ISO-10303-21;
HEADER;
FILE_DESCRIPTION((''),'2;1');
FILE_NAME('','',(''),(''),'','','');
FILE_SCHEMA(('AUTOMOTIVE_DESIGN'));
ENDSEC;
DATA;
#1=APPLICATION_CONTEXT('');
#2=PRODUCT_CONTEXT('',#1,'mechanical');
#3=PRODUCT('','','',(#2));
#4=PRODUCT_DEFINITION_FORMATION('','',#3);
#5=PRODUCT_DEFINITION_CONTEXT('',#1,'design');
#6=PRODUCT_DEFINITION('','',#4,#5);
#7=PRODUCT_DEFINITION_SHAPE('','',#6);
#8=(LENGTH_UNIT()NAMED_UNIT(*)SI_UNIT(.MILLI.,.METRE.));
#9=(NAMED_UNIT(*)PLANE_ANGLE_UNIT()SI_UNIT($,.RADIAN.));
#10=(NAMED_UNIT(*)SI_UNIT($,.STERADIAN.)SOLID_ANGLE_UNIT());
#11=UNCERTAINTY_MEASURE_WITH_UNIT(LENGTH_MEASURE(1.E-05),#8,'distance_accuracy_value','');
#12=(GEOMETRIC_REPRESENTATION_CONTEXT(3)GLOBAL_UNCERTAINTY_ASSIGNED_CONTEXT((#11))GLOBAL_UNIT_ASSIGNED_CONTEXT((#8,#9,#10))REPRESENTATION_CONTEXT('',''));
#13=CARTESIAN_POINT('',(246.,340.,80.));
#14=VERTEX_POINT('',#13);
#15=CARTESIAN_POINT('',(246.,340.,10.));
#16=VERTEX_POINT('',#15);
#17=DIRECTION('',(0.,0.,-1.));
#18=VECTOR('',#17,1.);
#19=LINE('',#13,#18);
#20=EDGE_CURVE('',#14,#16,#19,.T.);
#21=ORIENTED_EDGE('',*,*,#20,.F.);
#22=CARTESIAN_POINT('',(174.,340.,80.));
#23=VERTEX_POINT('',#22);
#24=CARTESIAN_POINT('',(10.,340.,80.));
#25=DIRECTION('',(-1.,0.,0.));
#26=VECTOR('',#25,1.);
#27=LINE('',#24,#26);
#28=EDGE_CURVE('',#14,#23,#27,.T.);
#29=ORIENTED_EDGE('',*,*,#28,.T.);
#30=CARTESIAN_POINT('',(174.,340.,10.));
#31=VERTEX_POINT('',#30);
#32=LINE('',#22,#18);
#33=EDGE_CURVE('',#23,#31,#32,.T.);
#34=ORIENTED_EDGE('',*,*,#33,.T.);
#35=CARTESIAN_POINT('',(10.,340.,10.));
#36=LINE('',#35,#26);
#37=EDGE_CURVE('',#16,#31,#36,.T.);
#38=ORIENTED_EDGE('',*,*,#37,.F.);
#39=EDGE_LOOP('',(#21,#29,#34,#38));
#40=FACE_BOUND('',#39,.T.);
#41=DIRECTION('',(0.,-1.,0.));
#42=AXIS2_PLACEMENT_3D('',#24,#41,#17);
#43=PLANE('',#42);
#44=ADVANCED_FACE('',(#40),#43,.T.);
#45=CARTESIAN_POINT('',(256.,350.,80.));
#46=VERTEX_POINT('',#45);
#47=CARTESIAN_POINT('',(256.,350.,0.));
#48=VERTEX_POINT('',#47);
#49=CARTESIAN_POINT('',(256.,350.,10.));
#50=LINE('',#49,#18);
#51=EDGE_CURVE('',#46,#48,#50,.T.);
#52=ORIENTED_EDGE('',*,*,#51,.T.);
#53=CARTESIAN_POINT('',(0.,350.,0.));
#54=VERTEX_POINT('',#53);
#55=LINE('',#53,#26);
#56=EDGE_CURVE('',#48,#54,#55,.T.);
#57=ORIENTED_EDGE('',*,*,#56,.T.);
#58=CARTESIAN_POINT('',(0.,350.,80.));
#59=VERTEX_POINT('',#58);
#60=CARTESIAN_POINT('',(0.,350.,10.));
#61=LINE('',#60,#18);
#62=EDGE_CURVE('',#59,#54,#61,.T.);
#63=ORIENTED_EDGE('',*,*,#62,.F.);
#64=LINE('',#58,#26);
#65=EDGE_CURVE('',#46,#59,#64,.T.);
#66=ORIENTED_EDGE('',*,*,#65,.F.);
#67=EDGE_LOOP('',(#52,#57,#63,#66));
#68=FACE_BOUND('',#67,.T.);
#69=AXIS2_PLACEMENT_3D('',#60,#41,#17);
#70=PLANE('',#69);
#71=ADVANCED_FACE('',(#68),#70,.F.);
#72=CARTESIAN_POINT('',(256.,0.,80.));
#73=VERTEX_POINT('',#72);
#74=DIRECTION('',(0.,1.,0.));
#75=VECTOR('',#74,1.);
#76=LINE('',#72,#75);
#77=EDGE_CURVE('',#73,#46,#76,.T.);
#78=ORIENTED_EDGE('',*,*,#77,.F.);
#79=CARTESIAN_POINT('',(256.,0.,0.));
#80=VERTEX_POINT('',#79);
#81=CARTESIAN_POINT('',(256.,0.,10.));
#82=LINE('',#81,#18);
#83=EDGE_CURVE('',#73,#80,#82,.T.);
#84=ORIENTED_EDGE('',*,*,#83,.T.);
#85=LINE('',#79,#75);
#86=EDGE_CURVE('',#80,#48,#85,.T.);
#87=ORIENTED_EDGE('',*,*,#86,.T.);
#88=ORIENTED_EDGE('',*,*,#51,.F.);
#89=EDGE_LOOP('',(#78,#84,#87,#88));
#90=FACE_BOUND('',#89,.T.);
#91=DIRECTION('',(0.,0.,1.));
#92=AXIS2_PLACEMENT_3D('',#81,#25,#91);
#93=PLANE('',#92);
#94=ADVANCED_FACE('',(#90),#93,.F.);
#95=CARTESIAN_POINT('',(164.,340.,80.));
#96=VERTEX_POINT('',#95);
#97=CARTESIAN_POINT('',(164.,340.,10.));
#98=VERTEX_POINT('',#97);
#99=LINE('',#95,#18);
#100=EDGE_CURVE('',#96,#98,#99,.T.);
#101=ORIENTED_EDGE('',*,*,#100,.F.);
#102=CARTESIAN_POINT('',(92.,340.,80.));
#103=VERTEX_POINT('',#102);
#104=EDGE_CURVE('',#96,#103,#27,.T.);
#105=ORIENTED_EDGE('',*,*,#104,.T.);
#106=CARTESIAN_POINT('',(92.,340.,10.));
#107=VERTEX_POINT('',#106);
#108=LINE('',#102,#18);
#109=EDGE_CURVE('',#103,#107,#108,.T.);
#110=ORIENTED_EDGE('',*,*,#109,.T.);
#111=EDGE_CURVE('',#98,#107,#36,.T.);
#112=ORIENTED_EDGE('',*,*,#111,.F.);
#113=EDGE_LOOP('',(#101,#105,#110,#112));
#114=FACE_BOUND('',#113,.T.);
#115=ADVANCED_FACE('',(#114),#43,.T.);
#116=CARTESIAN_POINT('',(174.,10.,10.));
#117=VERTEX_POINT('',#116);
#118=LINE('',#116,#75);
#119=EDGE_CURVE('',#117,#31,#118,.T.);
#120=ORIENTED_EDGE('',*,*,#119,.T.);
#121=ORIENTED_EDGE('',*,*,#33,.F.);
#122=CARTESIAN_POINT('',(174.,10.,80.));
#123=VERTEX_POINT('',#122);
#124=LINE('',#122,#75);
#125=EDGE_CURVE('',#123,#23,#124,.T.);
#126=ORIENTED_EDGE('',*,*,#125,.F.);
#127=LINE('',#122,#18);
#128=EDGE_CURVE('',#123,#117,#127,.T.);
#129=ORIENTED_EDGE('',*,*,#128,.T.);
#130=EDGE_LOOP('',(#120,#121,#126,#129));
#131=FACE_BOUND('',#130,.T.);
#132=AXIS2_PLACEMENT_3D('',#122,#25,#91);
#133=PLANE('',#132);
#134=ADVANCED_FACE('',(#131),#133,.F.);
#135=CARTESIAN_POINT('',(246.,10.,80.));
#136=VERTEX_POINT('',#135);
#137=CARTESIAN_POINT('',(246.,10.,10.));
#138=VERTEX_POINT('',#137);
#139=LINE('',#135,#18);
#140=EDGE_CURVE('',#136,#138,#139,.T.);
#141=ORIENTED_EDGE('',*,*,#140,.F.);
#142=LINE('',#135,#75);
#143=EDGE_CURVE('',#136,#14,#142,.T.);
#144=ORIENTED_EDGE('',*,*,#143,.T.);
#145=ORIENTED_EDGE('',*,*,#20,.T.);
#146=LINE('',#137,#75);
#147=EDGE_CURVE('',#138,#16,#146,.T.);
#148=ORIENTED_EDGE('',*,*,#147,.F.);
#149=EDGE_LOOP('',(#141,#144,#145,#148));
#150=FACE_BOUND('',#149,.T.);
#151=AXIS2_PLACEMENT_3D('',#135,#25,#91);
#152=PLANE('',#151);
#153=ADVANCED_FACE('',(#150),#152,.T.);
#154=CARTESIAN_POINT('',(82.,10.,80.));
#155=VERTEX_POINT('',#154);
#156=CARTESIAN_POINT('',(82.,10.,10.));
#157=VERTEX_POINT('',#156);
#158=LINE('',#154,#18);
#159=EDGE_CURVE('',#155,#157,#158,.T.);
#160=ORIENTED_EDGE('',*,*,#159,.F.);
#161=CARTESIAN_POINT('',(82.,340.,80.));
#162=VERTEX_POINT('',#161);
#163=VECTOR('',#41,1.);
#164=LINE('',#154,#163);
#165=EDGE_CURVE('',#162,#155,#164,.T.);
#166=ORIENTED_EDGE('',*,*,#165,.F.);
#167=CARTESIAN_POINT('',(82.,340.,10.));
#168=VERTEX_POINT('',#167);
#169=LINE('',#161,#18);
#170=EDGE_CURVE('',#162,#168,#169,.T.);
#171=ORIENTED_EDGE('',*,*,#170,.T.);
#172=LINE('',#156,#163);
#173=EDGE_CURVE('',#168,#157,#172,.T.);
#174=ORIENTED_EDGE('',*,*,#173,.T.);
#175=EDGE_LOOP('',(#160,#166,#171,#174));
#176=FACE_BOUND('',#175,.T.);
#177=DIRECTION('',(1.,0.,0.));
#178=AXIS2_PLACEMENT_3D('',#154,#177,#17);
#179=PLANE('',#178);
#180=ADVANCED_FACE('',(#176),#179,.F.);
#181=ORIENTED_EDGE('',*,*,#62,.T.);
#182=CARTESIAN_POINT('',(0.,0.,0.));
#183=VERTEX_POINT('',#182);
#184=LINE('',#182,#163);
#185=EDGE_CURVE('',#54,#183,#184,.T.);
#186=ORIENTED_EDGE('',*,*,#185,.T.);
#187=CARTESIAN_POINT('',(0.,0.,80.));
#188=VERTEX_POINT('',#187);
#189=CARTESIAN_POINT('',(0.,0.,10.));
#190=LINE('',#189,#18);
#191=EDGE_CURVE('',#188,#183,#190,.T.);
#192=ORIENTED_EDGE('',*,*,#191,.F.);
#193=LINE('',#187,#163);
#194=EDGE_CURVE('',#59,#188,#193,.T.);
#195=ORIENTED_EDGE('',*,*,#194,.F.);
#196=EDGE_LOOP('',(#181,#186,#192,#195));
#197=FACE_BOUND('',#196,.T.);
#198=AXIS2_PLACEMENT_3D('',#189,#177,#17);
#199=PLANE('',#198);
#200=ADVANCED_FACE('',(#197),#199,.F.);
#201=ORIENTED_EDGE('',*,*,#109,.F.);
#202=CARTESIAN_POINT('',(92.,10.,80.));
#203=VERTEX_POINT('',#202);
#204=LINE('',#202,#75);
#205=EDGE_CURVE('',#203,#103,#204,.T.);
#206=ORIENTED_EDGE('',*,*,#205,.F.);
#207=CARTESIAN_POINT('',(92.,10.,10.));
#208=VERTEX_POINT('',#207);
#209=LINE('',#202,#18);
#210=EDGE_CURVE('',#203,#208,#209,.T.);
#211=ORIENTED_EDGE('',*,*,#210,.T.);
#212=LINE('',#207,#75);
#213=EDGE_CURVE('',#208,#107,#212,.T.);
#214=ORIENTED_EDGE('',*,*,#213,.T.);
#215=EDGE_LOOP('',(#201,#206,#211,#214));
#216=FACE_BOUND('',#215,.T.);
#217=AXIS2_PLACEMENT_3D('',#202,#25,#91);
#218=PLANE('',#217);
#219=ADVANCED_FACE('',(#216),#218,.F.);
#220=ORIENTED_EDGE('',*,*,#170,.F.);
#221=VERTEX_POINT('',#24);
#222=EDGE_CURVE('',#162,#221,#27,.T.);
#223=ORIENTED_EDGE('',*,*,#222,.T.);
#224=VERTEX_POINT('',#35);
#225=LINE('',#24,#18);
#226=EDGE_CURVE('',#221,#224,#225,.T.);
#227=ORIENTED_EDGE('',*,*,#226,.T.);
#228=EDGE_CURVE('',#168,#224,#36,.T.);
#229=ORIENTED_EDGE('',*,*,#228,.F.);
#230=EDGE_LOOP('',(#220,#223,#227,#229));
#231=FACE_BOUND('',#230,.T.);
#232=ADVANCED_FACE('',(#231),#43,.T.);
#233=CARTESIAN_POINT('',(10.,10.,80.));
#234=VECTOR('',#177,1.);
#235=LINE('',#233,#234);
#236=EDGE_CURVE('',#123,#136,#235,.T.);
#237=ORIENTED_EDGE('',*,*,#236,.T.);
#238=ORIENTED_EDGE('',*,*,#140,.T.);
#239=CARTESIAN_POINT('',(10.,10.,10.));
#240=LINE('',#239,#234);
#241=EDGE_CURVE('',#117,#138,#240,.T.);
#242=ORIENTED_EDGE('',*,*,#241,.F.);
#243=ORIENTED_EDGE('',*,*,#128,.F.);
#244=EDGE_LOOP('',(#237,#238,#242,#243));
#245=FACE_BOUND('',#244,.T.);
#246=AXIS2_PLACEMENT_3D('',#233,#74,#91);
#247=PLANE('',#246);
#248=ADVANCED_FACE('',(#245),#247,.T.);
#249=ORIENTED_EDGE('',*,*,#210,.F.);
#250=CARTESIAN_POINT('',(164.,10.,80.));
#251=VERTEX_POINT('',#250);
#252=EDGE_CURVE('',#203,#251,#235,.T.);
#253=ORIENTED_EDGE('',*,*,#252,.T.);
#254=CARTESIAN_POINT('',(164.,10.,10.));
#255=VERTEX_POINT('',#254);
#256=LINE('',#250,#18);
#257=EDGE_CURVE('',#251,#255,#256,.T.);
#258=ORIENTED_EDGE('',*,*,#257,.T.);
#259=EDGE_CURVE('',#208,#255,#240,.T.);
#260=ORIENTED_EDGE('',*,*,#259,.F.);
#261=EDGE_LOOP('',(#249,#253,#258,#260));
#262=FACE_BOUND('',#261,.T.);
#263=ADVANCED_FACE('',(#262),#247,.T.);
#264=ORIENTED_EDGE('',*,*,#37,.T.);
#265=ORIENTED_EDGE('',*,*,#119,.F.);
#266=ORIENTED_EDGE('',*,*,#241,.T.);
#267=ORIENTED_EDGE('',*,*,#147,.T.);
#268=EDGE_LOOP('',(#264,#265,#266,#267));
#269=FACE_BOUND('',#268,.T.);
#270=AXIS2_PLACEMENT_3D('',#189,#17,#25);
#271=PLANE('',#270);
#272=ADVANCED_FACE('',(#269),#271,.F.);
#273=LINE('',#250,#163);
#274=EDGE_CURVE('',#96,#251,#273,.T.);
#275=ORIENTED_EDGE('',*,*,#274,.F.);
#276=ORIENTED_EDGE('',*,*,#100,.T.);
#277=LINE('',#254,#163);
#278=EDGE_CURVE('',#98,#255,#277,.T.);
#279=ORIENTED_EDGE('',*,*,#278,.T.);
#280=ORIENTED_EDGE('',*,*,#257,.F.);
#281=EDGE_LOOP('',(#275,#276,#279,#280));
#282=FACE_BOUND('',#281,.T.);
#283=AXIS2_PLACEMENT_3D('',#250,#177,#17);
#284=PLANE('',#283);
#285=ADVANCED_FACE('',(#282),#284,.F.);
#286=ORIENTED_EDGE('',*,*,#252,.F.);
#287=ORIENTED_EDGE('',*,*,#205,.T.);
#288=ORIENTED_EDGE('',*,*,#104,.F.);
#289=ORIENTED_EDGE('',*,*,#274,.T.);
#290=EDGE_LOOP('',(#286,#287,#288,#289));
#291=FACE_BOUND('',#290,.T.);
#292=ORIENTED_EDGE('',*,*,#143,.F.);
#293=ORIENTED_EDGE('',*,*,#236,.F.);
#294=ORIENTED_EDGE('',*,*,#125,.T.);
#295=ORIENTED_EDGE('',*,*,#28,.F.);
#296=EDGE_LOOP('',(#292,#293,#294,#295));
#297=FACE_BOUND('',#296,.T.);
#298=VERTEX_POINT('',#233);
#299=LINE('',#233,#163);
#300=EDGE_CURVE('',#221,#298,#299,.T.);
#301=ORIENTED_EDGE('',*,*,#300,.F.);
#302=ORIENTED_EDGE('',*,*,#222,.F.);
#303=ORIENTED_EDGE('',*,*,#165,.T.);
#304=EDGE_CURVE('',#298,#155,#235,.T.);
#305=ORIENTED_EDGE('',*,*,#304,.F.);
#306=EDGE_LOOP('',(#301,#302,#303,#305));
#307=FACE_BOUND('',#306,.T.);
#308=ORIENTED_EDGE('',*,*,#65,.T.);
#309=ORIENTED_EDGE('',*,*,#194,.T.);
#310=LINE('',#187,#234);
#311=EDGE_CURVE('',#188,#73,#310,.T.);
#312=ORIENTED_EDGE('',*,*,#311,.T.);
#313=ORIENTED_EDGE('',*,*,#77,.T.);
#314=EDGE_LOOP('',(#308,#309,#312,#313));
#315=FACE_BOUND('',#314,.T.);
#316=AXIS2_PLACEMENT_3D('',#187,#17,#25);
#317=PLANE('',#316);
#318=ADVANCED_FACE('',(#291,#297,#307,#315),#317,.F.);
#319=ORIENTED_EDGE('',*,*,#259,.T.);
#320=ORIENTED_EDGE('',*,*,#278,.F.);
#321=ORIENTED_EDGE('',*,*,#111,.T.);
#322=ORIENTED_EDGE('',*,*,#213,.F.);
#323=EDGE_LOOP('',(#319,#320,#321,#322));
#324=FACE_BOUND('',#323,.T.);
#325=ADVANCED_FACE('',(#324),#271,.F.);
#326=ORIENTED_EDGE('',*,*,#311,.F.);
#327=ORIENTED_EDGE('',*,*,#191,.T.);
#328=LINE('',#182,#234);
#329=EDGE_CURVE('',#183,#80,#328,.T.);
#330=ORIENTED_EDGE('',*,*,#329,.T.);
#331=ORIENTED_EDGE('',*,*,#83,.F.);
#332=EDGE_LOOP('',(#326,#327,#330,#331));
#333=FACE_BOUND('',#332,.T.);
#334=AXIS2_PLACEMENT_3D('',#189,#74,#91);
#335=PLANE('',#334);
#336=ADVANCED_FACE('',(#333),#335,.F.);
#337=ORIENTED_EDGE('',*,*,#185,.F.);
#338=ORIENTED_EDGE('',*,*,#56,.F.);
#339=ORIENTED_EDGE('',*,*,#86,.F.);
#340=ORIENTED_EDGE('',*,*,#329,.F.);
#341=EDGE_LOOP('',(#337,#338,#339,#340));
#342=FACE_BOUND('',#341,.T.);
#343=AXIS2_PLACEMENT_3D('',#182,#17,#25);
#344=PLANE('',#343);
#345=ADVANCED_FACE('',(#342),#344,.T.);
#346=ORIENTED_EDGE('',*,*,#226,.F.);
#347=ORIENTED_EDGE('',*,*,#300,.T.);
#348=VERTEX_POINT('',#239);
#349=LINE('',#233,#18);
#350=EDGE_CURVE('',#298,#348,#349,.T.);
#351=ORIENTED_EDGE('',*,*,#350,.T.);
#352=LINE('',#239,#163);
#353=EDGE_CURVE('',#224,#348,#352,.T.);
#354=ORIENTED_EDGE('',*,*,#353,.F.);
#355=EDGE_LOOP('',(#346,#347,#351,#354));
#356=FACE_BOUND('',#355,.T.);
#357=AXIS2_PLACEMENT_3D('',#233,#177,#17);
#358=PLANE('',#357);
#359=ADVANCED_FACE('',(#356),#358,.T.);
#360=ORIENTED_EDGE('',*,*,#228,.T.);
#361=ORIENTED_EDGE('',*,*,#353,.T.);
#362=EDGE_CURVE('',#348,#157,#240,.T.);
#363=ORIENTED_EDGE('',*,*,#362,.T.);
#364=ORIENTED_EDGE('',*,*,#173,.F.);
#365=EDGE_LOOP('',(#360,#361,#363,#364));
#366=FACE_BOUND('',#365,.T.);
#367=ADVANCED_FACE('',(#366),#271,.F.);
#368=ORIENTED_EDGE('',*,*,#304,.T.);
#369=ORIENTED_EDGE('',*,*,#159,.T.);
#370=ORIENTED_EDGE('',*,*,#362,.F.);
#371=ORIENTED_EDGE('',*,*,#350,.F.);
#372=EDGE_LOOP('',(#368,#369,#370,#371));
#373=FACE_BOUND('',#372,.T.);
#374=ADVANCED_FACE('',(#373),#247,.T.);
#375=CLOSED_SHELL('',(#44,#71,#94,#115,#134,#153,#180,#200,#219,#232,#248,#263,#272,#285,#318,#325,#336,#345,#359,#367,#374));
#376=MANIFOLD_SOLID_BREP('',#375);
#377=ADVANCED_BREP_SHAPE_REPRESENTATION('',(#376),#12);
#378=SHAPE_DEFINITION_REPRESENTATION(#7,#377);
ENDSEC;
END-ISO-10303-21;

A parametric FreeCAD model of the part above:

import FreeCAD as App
import Part
import Sketcher


def add_polygon(sketch, points):
    """Adds a closed chain of lines whose ends are joined by coincident constraints."""
    first, n = sketch.GeometryCount, len(points)
    for a, b in zip(points, points[1:] + points[:1]):
        sketch.addGeometry(Part.LineSegment(App.Vector(*a, 0), App.Vector(*b, 0)), False)
    for i in range(n):
        sketch.addConstraint(Sketcher.Constraint("Coincident", first + i, 2, first + (i + 1) % n, 1))

doc = App.newDocument("Part")
params = doc.addObject("Spreadsheet::Sheet", "Params")
for row, (alias, value) in enumerate([
    ("sketch1_width", "256 mm"),
    ("sketch1_height", "350 mm"),
    ("pad1_length", "10 mm"),
    ("sketch2_width", "256 mm"),
    ("sketch2_width2", "236 mm"),
    ("sketch2_height", "350 mm"),
    ("sketch2_height2", "330 mm"),
    ("pad2_length", "70 mm"),
    ("sketch3_width", "10 mm"),
    ("sketch3_height", "330 mm"),
    ("pad3_length", "70 mm"),
], start=1):
    params.set(f"A{row}", alias)
    params.set(f"B{row}", "=" + value)
    params.setAlias(f"B{row}", alias)

body = doc.addObject("PartDesign::Body", "Body")

# Sketch on XY plane
sketch1 = doc.addObject("Sketcher::SketchObject", "Sketch")
body.addObject(sketch1)
sketch1.AttachmentSupport = (doc.XY_Plane, [""])
sketch1.MapMode = "FlatFace"
add_polygon(sketch1, [(0, 350), (0, 0), (256, 0), (256, 350)])  # lines 0-3
sketch1.addConstraint([
    Sketcher.Constraint("Vertical", 0),
    Sketcher.Constraint("Horizontal", 1),
    Sketcher.Constraint("Vertical", 2),
    Sketcher.Constraint("Horizontal", 3),
    Sketcher.Constraint("Coincident", 0, 2, -1, 1),
    Sketcher.Constraint("DistanceX", 1, 1, 1, 2, 256.0),
    Sketcher.Constraint("DistanceY", 0, 2, 0, 1, 350.0),
])
sketch1.setExpression("Constraints[9]", "Params.sketch1_width")
sketch1.setExpression("Constraints[10]", "Params.sketch1_height")
pad1 = doc.addObject("PartDesign::Pad", "Pad")
body.addObject(pad1)
pad1.Profile = sketch1
pad1.setExpression("Length", "Params.pad1_length")

# Sketch on XY plane
sketch2 = doc.addObject("Sketcher::SketchObject", "Sketch001")
body.addObject(sketch2)
sketch2.AttachmentSupport = (doc.XY_Plane, [""])
sketch2.MapMode = "FlatFace"
sketch2.AttachmentOffset = App.Placement(App.Vector(0, 0, 10), App.Rotation())
add_polygon(sketch2, [(0, 350), (0, 0), (256, 0), (256, 350)])  # lines 0-3
add_polygon(sketch2, [(246, 10), (10, 10), (10, 340), (246, 340)])  # lines 4-7
sketch2.addConstraint([
    Sketcher.Constraint("Vertical", 0),
    Sketcher.Constraint("Horizontal", 1),
    Sketcher.Constraint("Vertical", 2),
    Sketcher.Constraint("Horizontal", 3),
    Sketcher.Constraint("Horizontal", 4),
    Sketcher.Constraint("Vertical", 5),
    Sketcher.Constraint("Horizontal", 6),
    Sketcher.Constraint("Vertical", 7),
    Sketcher.Constraint("Coincident", 0, 2, -1, 1),
    Sketcher.Constraint("DistanceX", 1, 1, 1, 2, 256.0),
    Sketcher.Constraint("DistanceX", 4, 2, 4, 1, 236.0),
    Sketcher.Constraint("DistanceY", 0, 2, 0, 1, 350.0),
    Sketcher.Constraint("DistanceY", 5, 1, 5, 2, 330.0),
    Sketcher.Constraint("DistanceX", -1, 1, 4, 2, 10.0),
    Sketcher.Constraint("DistanceY", -1, 1, 4, 2, 10.0),
])
sketch2.setExpression("Constraints[17]", "Params.sketch2_width")
sketch2.setExpression("Constraints[18]", "Params.sketch2_width2")
sketch2.setExpression("Constraints[19]", "Params.sketch2_height")
sketch2.setExpression("Constraints[20]", "Params.sketch2_height2")
pad2 = doc.addObject("PartDesign::Pad", "Pad001")
body.addObject(pad2)
pad2.Profile = sketch2
pad2.setExpression("Length", "Params.pad2_length")

# Sketch on XY plane
sketch3 = doc.addObject("Sketcher::SketchObject", "Sketch002")
body.addObject(sketch3)
sketch3.AttachmentSupport = (doc.XY_Plane, [""])
sketch3.MapMode = "FlatFace"
sketch3.AttachmentOffset = App.Placement(App.Vector(0, 0, 10), App.Rotation())
add_polygon(sketch3, [(82, 340), (82, 10), (92, 10), (92, 340)])  # lines 0-3
add_polygon(sketch3, [(164, 340), (164, 10), (174, 10), (174, 340)])  # lines 4-7
sketch3.addConstraint([
    Sketcher.Constraint("Vertical", 0),
    Sketcher.Constraint("Horizontal", 1),
    Sketcher.Constraint("Vertical", 2),
    Sketcher.Constraint("Horizontal", 3),
    Sketcher.Constraint("Vertical", 4),
    Sketcher.Constraint("Horizontal", 5),
    Sketcher.Constraint("Vertical", 6),
    Sketcher.Constraint("Horizontal", 7),
    Sketcher.Constraint("Horizontal", 1, 2, 4, 2),
    Sketcher.Constraint("Horizontal", 3, 2, 6, 2),
    Sketcher.Constraint("Equal", 3, 5),
    Sketcher.Constraint("DistanceX", 1, 1, 1, 2, 10.0),
    Sketcher.Constraint("DistanceY", 0, 2, 0, 1, 330.0),
    Sketcher.Constraint("DistanceX", -1, 1, 0, 2, 82.0),
    Sketcher.Constraint("DistanceY", -1, 1, 0, 2, 10.0),
    Sketcher.Constraint("DistanceX", -1, 1, 4, 2, 164.0),
])
sketch3.setExpression("Constraints[19]", "Params.sketch3_width")
sketch3.setExpression("Constraints[20]", "Params.sketch3_height")
pad3 = doc.addObject("PartDesign::Pad", "Pad002")
body.addObject(pad3)
pad3.Profile = sketch3
pad3.setExpression("Length", "Params.pad3_length")

doc.recompute()
